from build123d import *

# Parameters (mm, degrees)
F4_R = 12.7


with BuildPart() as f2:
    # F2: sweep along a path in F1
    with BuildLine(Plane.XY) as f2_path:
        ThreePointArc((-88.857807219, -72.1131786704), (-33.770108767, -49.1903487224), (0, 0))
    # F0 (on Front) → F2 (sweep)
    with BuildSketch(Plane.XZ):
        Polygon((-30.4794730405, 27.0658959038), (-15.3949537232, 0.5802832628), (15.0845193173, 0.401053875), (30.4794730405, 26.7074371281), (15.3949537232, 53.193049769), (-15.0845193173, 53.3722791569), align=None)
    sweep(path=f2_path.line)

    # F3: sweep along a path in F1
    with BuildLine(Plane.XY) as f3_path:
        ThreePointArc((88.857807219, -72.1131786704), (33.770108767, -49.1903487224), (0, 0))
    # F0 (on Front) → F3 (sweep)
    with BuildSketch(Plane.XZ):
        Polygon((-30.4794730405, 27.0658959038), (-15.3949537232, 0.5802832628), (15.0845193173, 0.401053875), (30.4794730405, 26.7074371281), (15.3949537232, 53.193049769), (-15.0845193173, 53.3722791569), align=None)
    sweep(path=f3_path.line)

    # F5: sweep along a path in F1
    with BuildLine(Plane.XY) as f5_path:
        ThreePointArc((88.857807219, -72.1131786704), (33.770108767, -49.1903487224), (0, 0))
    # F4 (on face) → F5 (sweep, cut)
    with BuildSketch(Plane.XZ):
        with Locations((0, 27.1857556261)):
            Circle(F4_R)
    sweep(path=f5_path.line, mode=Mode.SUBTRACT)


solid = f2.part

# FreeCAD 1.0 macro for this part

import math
import FreeCAD as App
import Part
import Sketcher

V = App.Vector
Q = App.Units.Quantity

doc = App.newDocument("Part")
body = doc.addObject("PartDesign::Body", "Body")

sketch1 = body.newObject("Sketcher::SketchObject", "Sketch")
sketch1.AttachmentSupport = (doc.getObject("XZ_Plane"), [""])
sketch1.MapMode = "FlatFace"
sketch1.addGeometry([
    Part.LineSegment(V(-30, 27, 0), V(-15, 1, 0)),
    Part.LineSegment(V(-15, 1, 0), V(15, 0, 0)),
    Part.LineSegment(V(15, 0, 0), V(30, 27, 0)),
    Part.LineSegment(V(30, 27, 0), V(15, 53, 0)),
    Part.LineSegment(V(15, 53, 0), V(-15, 53, 0)),
    Part.LineSegment(V(-15, 53, 0), V(-30, 27, 0)),
], False)
sketch1.addConstraint([
    Sketcher.Constraint("Coincident", 0, 2, 1, 1),
    Sketcher.Constraint("Coincident", 1, 2, 2, 1),
    Sketcher.Constraint("Coincident", 2, 2, 3, 1),
    Sketcher.Constraint("Coincident", 3, 2, 4, 1),
    Sketcher.Constraint("Coincident", 4, 2, 5, 1),
    Sketcher.Constraint("Coincident", 5, 2, 0, 1),
    Sketcher.Constraint("Parallel", 0, 3),
    Sketcher.Constraint("Parallel", 1, 4),
    Sketcher.Constraint("Parallel", 2, 5),
    Sketcher.Constraint("Equal", 0, 1),
    Sketcher.Constraint("Equal", 1, 2),
    Sketcher.Constraint("Equal", 2, 3),
    Sketcher.Constraint("Distance", 0, Q("1.2 in")),
    Sketcher.Constraint("DistanceX", -1, 1, 1, 2, Q("15.084519 mm")),
    Sketcher.Constraint("DistanceY", -1, 1, 3, 2, Q("53.19305 mm")),
    Sketcher.Constraint("DistanceX", 4, 2, -1, 1, Q("15.084519 mm")),
    Sketcher.Constraint("DistanceY", -1, 1, 4, 2, Q("53.372279 mm")),
    Sketcher.Constraint("DistanceX", 3, 2, 2, 2, Q("15.084519 mm")),
])

sketch2 = body.newObject("Sketcher::SketchObject", "Sketch001")
sketch2.AttachmentSupport = (doc.getObject("XY_Plane"), [""])
sketch2.MapMode = "FlatFace"
sketch2.addGeometry(Part.ArcOfCircle(Part.Circle(V(-100, 33, 0), V(0, 0, 1), 105), math.radians(-84), math.radians(-18)), False)
sketch2.addConstraint([
    Sketcher.Constraint("Coincident", 0, 2, -1, 1),
    Sketcher.Constraint("Radius", 0, Q("105.237462 mm")),
    Sketcher.Constraint("DistanceY", 0, 1, -1, 1, Q("72.113179 mm")),
    Sketcher.Constraint("DistanceX", 0, 3, -1, 1, Q("100.085652 mm")),
])
doc.recompute()

additivepipe = body.newObject("PartDesign::AdditivePipe", "AdditivePipe")
additivepipe.Profile = sketch1
additivepipe.Spine = (sketch2, ["Edge1"])

sketch3 = body.newObject("Sketcher::SketchObject", "Sketch002")
sketch3.AttachmentSupport = (doc.getObject("XZ_Plane"), [""])
sketch3.MapMode = "FlatFace"
sketch3.addGeometry([
    Part.LineSegment(V(-30, 27, 0), V(-15, 1, 0)),
    Part.LineSegment(V(-15, 1, 0), V(15, 0, 0)),
    Part.LineSegment(V(15, 0, 0), V(30, 27, 0)),
    Part.LineSegment(V(30, 27, 0), V(15, 53, 0)),
    Part.LineSegment(V(15, 53, 0), V(-15, 53, 0)),
    Part.LineSegment(V(-15, 53, 0), V(-30, 27, 0)),
], False)
sketch3.addConstraint([
    Sketcher.Constraint("Coincident", 0, 2, 1, 1),
    Sketcher.Constraint("Coincident", 1, 2, 2, 1),
    Sketcher.Constraint("Coincident", 2, 2, 3, 1),
    Sketcher.Constraint("Coincident", 3, 2, 4, 1),
    Sketcher.Constraint("Coincident", 4, 2, 5, 1),
    Sketcher.Constraint("Coincident", 5, 2, 0, 1),
    Sketcher.Constraint("Parallel", 0, 3),
    Sketcher.Constraint("Parallel", 1, 4),
    Sketcher.Constraint("Parallel", 2, 5),
    Sketcher.Constraint("Equal", 0, 1),
    Sketcher.Constraint("Equal", 1, 2),
    Sketcher.Constraint("Equal", 2, 3),
    Sketcher.Constraint("Distance", 0, Q("1.2 in")),
    Sketcher.Constraint("DistanceX", -1, 1, 1, 2, Q("15.084519 mm")),
    Sketcher.Constraint("DistanceY", -1, 1, 3, 2, Q("53.19305 mm")),
    Sketcher.Constraint("DistanceX", 4, 2, -1, 1, Q("15.084519 mm")),
    Sketcher.Constraint("DistanceY", -1, 1, 4, 2, Q("53.372279 mm")),
    Sketcher.Constraint("DistanceX", 3, 2, 2, 2, Q("15.084519 mm")),
])

sketch4 = body.newObject("Sketcher::SketchObject", "Sketch003")
sketch4.AttachmentSupport = (doc.getObject("XY_Plane"), [""])
sketch4.MapMode = "FlatFace"
sketch4.addGeometry(Part.ArcOfCircle(Part.Circle(V(100, 33, 0), V(0, 0, 1), 105), math.radians(-162), math.radians(-96)), False)
sketch4.addConstraint([
    Sketcher.Constraint("Coincident", 0, 1, -1, 1),
    Sketcher.Constraint("Radius", 0, Q("105.237462 mm")),
    Sketcher.Constraint("DistanceY", 0, 2, -1, 1, Q("72.113179 mm")),
    Sketcher.Constraint("DistanceX", -1, 1, 0, 3, Q("100.085652 mm")),
])
doc.recompute()

additivepipe2 = body.newObject("PartDesign::AdditivePipe", "AdditivePipe001")
additivepipe2.Profile = sketch3
additivepipe2.Spine = (sketch4, ["Edge1"])

sketch5 = body.newObject("Sketcher::SketchObject", "Sketch004")
sketch5.AttachmentSupport = (doc.getObject("XZ_Plane"), [""])
sketch5.MapMode = "FlatFace"
sketch5.addGeometry(Part.Circle(V(0, 27, 0), V(0, 0, 1), 13), False)
sketch5.addConstraint([
    Sketcher.Constraint("PointOnObject", 0, 3, -2),
    Sketcher.Constraint("Diameter", 0, Q("1 in")),
    Sketcher.Constraint("DistanceY", -1, 1, 0, 3, Q("27.185756 mm")),
])

sketch6 = body.newObject("Sketcher::SketchObject", "Sketch005")
sketch6.AttachmentSupport = (doc.getObject("XY_Plane"), [""])
sketch6.MapMode = "FlatFace"
sketch6.addGeometry(Part.ArcOfCircle(Part.Circle(V(100, 33, 0), V(0, 0, 1), 105), math.radians(-162), math.radians(-96)), False)
sketch6.addConstraint([
    Sketcher.Constraint("Coincident", 0, 1, -1, 1),
    Sketcher.Constraint("Radius", 0, Q("105.237462 mm")),
    Sketcher.Constraint("DistanceY", 0, 2, -1, 1, Q("72.113179 mm")),
    Sketcher.Constraint("DistanceX", -1, 1, 0, 3, Q("100.085652 mm")),
])
doc.recompute()

subtractivepipe = body.newObject("PartDesign::SubtractivePipe", "SubtractivePipe")
subtractivepipe.Profile = sketch5
subtractivepipe.Spine = (sketch6, ["Edge1"])

doc.recompute()
